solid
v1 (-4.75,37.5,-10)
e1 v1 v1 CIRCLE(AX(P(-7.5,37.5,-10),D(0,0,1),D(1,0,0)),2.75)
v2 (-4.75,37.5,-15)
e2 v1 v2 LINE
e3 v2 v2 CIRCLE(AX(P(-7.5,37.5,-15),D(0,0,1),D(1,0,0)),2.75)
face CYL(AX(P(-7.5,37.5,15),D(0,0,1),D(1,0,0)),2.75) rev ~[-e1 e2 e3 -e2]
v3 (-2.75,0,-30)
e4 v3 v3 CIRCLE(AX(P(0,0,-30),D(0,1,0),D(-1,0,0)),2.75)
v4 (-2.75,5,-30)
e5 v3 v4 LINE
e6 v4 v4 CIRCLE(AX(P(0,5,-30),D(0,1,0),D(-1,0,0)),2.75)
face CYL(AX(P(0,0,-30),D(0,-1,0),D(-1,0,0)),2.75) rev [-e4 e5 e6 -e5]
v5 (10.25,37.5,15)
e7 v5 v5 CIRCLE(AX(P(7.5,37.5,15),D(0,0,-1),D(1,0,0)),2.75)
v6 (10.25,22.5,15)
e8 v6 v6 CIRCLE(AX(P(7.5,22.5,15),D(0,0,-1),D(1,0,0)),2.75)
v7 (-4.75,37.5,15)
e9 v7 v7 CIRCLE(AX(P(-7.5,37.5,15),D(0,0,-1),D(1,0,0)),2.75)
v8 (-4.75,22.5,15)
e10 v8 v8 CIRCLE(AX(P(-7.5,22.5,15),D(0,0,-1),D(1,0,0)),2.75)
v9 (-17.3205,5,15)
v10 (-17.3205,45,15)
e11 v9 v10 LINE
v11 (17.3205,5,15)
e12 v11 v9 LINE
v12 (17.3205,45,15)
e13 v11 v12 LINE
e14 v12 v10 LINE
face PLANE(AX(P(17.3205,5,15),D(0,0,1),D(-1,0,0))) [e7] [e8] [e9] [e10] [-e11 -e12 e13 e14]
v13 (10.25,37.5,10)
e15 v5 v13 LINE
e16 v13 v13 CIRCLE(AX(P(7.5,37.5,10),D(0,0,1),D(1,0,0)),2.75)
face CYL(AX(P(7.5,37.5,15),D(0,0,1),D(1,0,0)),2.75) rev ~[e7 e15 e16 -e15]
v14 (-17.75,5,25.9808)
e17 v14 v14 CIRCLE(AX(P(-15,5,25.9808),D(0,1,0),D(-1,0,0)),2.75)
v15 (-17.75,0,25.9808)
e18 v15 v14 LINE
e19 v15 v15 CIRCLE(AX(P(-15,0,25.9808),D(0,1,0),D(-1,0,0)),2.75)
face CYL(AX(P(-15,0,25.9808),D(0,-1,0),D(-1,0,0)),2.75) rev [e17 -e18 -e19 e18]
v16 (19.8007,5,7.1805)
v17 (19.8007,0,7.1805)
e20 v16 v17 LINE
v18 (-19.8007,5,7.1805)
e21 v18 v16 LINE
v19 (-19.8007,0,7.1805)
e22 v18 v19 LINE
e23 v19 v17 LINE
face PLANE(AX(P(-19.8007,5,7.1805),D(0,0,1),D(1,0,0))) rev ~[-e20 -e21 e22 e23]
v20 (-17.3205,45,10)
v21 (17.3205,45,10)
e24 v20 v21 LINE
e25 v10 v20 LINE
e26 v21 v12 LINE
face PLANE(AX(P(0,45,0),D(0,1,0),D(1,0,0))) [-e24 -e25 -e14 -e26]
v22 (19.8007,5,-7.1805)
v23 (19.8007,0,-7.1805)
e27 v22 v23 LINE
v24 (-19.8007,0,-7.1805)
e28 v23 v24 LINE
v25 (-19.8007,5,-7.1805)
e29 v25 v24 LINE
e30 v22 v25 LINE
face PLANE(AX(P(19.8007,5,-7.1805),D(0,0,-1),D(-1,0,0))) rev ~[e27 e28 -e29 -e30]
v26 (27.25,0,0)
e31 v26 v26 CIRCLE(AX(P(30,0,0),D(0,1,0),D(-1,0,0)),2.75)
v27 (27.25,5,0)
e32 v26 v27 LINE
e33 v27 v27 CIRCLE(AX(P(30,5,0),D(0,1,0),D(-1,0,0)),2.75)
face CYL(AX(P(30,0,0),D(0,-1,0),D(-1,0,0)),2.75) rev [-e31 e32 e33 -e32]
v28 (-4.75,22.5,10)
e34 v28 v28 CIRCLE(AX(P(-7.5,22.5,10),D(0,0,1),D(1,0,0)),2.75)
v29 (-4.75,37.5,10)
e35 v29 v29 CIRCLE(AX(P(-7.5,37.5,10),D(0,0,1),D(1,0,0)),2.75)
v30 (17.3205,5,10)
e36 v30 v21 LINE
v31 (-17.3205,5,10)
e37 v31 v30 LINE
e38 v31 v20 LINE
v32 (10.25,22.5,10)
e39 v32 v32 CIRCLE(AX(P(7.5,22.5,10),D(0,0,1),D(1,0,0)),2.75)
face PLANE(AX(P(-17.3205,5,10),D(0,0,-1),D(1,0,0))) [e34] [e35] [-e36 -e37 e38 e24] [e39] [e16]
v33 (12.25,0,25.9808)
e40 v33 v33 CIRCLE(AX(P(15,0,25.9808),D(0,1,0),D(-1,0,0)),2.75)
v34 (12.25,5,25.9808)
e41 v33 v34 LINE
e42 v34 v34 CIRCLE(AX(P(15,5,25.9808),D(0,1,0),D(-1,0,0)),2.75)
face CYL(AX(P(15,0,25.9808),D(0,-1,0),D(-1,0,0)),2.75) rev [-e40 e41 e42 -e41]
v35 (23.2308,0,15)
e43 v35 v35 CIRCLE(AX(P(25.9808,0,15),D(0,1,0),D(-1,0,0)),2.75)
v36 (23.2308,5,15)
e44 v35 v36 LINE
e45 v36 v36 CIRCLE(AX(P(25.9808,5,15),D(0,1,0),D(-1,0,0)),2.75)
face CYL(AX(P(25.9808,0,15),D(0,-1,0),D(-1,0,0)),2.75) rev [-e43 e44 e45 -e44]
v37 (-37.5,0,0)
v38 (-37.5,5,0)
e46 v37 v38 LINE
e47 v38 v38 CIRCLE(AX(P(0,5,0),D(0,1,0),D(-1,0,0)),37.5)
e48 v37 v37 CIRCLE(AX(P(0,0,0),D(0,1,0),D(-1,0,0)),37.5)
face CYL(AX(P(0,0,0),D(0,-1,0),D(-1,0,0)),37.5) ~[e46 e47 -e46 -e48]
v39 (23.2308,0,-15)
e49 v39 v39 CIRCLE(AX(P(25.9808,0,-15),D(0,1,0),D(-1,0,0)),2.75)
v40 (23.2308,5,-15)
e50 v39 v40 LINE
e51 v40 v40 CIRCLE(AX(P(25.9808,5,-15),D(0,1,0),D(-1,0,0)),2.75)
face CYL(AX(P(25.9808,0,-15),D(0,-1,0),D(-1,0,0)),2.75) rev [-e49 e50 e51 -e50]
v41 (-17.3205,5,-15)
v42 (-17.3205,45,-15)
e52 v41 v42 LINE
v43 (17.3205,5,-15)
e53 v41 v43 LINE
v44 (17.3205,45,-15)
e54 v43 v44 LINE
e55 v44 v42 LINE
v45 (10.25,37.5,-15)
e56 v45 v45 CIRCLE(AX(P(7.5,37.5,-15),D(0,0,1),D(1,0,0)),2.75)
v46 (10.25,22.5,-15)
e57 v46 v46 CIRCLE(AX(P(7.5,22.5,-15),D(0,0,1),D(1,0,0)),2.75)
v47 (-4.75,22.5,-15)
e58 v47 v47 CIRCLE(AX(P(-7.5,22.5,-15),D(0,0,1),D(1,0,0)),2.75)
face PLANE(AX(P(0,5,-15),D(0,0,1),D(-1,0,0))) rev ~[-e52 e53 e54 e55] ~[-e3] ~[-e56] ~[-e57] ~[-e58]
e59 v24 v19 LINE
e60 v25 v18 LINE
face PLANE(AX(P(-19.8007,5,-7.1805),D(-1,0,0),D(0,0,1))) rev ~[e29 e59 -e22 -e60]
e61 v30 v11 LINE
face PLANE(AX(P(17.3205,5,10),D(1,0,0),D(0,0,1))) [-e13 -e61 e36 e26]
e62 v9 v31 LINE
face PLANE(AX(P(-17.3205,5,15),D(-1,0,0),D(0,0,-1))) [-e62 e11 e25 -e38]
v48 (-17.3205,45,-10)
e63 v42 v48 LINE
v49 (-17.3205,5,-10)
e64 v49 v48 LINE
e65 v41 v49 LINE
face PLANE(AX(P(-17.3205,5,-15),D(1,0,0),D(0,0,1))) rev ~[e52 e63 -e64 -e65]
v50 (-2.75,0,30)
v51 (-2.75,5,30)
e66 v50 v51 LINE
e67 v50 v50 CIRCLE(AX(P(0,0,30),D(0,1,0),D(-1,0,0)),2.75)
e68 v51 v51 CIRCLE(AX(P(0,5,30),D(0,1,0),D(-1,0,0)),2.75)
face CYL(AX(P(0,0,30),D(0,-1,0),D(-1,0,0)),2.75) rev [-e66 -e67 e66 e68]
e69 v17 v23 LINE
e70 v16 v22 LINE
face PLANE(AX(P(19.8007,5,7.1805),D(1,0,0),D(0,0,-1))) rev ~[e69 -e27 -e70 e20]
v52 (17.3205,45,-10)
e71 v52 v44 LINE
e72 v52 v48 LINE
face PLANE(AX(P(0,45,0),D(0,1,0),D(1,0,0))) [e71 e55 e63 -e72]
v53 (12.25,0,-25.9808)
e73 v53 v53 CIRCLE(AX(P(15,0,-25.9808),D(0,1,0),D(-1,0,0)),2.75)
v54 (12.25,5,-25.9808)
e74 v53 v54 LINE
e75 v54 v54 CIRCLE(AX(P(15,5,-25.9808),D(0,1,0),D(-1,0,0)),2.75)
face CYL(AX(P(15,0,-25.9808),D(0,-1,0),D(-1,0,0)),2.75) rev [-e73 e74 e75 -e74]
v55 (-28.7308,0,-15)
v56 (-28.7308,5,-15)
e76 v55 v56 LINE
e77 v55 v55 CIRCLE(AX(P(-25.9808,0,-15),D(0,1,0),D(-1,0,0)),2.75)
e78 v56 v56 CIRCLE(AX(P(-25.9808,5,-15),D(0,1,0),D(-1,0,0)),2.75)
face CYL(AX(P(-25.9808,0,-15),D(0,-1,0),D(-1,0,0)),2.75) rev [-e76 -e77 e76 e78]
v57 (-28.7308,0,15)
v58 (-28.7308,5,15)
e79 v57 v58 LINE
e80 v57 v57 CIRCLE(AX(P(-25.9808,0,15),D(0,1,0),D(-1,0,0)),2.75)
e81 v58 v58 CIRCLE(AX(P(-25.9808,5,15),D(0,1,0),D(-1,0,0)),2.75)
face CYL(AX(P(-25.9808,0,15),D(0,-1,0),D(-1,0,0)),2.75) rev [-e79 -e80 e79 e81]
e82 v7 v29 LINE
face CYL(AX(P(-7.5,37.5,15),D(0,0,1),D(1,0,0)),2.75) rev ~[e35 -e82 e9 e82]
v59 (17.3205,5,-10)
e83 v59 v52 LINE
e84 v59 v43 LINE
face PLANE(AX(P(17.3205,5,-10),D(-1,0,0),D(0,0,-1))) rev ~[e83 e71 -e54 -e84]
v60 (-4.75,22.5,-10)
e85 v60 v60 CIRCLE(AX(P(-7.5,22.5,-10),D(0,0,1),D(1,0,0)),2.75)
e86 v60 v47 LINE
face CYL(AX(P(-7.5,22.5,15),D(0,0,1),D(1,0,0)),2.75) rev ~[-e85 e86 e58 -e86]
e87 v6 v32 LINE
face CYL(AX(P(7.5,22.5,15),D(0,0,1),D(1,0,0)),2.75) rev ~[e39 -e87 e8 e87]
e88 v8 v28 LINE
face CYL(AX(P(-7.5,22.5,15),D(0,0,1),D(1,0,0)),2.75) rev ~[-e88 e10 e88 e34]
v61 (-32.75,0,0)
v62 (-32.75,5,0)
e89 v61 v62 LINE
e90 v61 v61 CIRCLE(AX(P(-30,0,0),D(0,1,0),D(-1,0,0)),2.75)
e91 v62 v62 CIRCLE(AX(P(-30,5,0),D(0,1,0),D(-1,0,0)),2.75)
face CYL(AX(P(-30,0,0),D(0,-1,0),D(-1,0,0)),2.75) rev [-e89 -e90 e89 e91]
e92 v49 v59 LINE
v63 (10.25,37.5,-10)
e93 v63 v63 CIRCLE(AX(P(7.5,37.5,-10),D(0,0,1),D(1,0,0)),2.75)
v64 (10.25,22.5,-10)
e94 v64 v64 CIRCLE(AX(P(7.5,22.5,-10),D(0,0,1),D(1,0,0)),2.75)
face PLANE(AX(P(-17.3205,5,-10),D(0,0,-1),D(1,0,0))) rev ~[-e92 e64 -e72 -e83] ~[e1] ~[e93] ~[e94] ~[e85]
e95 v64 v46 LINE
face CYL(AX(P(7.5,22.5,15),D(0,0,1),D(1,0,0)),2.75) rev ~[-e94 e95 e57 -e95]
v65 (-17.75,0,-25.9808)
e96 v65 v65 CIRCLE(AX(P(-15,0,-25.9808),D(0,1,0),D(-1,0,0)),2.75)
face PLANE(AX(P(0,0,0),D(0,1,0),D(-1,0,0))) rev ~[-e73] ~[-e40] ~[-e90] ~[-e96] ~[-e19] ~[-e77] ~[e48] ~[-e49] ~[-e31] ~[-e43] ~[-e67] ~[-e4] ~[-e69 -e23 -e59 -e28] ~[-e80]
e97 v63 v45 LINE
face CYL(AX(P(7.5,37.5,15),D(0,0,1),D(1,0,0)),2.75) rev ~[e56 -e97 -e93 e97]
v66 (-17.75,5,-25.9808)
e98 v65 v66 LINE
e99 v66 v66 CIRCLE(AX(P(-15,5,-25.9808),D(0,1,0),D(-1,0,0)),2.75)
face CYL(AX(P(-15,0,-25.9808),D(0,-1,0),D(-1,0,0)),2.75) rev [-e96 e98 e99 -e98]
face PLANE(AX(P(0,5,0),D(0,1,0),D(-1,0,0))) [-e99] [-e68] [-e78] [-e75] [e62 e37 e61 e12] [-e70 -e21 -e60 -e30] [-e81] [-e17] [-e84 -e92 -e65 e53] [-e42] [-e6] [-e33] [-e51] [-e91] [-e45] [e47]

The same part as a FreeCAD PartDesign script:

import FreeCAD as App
import Part
import Sketcher
from FreeCAD import Vector
Q = App.Units.Quantity

doc = App.newDocument("Part")
body = doc.addObject("PartDesign::Body", "Body")

# Sketch on XZ plane
sketch1 = body.newObject("Sketcher::SketchObject", "Sketch")
sketch1.AttachmentSupport = (doc.getObject("XZ_Plane"), [""])
sketch1.MapMode = "FlatFace"
sketch1.addGeometry(Part.Circle(Vector(0, 0, 0), Vector(0, 0, 1), 37.5), False)
sketch1.addGeometry(Part.Circle(Vector(15, -26, 0), Vector(0, 0, 1), 2.8), False)
sketch1.addGeometry(Part.Circle(Vector(26, -15, 0), Vector(0, 0, 1), 2.8), False)
sketch1.addGeometry(Part.Circle(Vector(0, -30, 0), Vector(0, 0, 1), 2.8), False)
sketch1.addGeometry(Part.Circle(Vector(-15, -26, 0), Vector(0, 0, 1), 2.8), False)
sketch1.addGeometry(Part.Circle(Vector(-26, -15, 0), Vector(0, 0, 1), 2.8), False)
sketch1.addGeometry(Part.Circle(Vector(30, 0, 0), Vector(0, 0, 1), 2.8), False)
sketch1.addGeometry(Part.Circle(Vector(26, 15, 0), Vector(0, 0, 1), 2.8), False)
sketch1.addGeometry(Part.Circle(Vector(15, 26, 0), Vector(0, 0, 1), 2.8), False)
sketch1.addGeometry(Part.Circle(Vector(-30, 0, 0), Vector(0, 0, 1), 2.8), False)
sketch1.addGeometry(Part.Circle(Vector(-26, 15, 0), Vector(0, 0, 1), 2.8), False)
sketch1.addGeometry(Part.Circle(Vector(-15, 26, 0), Vector(0, 0, 1), 2.8), False)
sketch1.addGeometry(Part.Circle(Vector(0, 30, 0), Vector(0, 0, 1), 2.8), False)
sketch1.addConstraint(Sketcher.Constraint("Coincident", 0, 3, -1, 1))
sketch1.addConstraint(Sketcher.Constraint("Equal", 1, 2))
sketch1.addConstraint(Sketcher.Constraint("Equal", 2, 3))
sketch1.addConstraint(Sketcher.Constraint("Equal", 3, 4))
sketch1.addConstraint(Sketcher.Constraint("Equal", 4, 5))
sketch1.addConstraint(Sketcher.Constraint("Equal", 5, 6))
sketch1.addConstraint(Sketcher.Constraint("Equal", 6, 7))
sketch1.addConstraint(Sketcher.Constraint("Equal", 7, 8))
sketch1.addConstraint(Sketcher.Constraint("Equal", 8, 9))
sketch1.addConstraint(Sketcher.Constraint("Equal", 9, 10))
sketch1.addConstraint(Sketcher.Constraint("Equal", 10, 11))
sketch1.addConstraint(Sketcher.Constraint("Equal", 11, 12))
sketch1.addConstraint(Sketcher.Constraint("Symmetric", 5, 3, 7, 3, -1, 1))
sketch1.addConstraint(Sketcher.Constraint("Symmetric", 4, 3, 8, 3, -1, 1))
sketch1.addConstraint(Sketcher.Constraint("Symmetric", 6, 3, 9, 3, -1, 1))
sketch1.addConstraint(Sketcher.Constraint("Symmetric", 2, 3, 10, 3, -1, 1))
sketch1.addConstraint(Sketcher.Constraint("Symmetric", 1, 3, 11, 3, -1, 1))
sketch1.addConstraint(Sketcher.Constraint("Symmetric", 3, 3, 12, 3, -1, 1))
sketch1.addConstraint(Sketcher.Constraint("Symmetric", 1, 3, 4, 3, -2))
sketch1.addConstraint(Sketcher.Constraint("Symmetric", 2, 3, 5, 3, -2))
sketch1.addConstraint(Sketcher.Constraint("PointOnObject", 3, 3, -2))
sketch1.addConstraint(Sketcher.Constraint("PointOnObject", 6, 3, -1))
sketch1.addConstraint(Sketcher.Constraint("Diameter", 0, Q("75 mm")))
sketch1.addConstraint(Sketcher.Constraint("Diameter", 1, Q("5.5 mm")))
sketch1.addConstraint(Sketcher.Constraint("DistanceY", 3, 3, -1, 1, Q("30 mm")))
sketch1.addConstraint(Sketcher.Constraint("DistanceX", -1, 1, 6, 3, Q("30 mm")))
sketch1.addConstraint(Sketcher.Constraint("DistanceX", 4, 3, 1, 3, Q("30 mm")))
sketch1.addConstraint(Sketcher.Constraint("DistanceY", 2, 3, 7, 3, Q("30 mm")))
sketch1.addConstraint(Sketcher.Constraint("DistanceY", 1, 3, -1, 1, Q("25.9808 mm")))
sketch1.addConstraint(Sketcher.Constraint("DistanceX", -1, 1, 2, 3, Q("25.9808 mm")))
pad1 = body.newObject("PartDesign::Pad", "Pad")
pad1.Profile = sketch1
pad1.Length = 5
pad1.Reversed = True

# Sketch on XZ plane
sketch2 = body.newObject("Sketcher::SketchObject", "Sketch001")
sketch2.AttachmentSupport = (doc.getObject("XZ_Plane"), [""])
sketch2.MapMode = "FlatFace"
sketch2.AttachmentOffset = App.Placement(Vector(0, 0, -5), App.Rotation())
sketch2.addGeometry(Part.LineSegment(Vector(-17, -10, 0), Vector(17, -10, 0)), False)
sketch2.addGeometry(Part.LineSegment(Vector(17, -10, 0), Vector(17, -15, 0)), False)
sketch2.addGeometry(Part.LineSegment(Vector(17, -15, 0), Vector(-17, -15, 0)), False)
sketch2.addGeometry(Part.LineSegment(Vector(-17, -15, 0), Vector(-17, -10, 0)), False)
sketch2.addGeometry(Part.LineSegment(Vector(17, 10, 0), Vector(-17, 10, 0)), False)
sketch2.addGeometry(Part.LineSegment(Vector(-17, 10, 0), Vector(-17, 15, 0)), False)
sketch2.addGeometry(Part.LineSegment(Vector(-17, 15, 0), Vector(17, 15, 0)), False)
sketch2.addGeometry(Part.LineSegment(Vector(17, 15, 0), Vector(17, 10, 0)), False)
sketch2.addConstraint(Sketcher.Constraint("Coincident", 0, 2, 1, 1))
sketch2.addConstraint(Sketcher.Constraint("Coincident", 1, 2, 2, 1))
sketch2.addConstraint(Sketcher.Constraint("Coincident", 2, 2, 3, 1))
sketch2.addConstraint(Sketcher.Constraint("Coincident", 3, 2, 0, 1))
sketch2.addConstraint(Sketcher.Constraint("Coincident", 4, 2, 5, 1))
sketch2.addConstraint(Sketcher.Constraint("Coincident", 5, 2, 6, 1))
sketch2.addConstraint(Sketcher.Constraint("Coincident", 6, 2, 7, 1))
sketch2.addConstraint(Sketcher.Constraint("Coincident", 7, 2, 4, 1))
sketch2.addConstraint(Sketcher.Constraint("Horizontal", 0))
sketch2.addConstraint(Sketcher.Constraint("Vertical", 1))
sketch2.addConstraint(Sketcher.Constraint("Horizontal", 2))
sketch2.addConstraint(Sketcher.Constraint("Vertical", 3))
sketch2.addConstraint(Sketcher.Constraint("Horizontal", 4))
sketch2.addConstraint(Sketcher.Constraint("Vertical", 5))
sketch2.addConstraint(Sketcher.Constraint("Horizontal", 6))
sketch2.addConstraint(Sketcher.Constraint("Vertical", 7))
sketch2.addConstraint(Sketcher.Constraint("Symmetric", 0, 2, 4, 2, -1, 1))
sketch2.addConstraint(Sketcher.Constraint("Symmetric", 2, 2, 6, 2, -1, 1))
sketch2.addConstraint(Sketcher.Constraint("Vertical", 3, 2, 4, 2))
sketch2.addConstraint(Sketcher.Constraint("DistanceY", 1, 2, 1, 1, Q("5 mm")))
sketch2.addConstraint(Sketcher.Constraint("DistanceY", 3, 2, 4, 2, Q("20 mm")))
sketch2.addConstraint(Sketcher.Constraint("DistanceX", 0, 1, 0, 2, Q("34.641 mm")))
pad2 = body.newObject("PartDesign::Pad", "Pad001")
pad2.Profile = sketch2
pad2.Length = 40
pad2.Reversed = True

# Sketch on XY plane
sketch3 = body.newObject("Sketcher::SketchObject", "Sketch002")
sketch3.AttachmentSupport = (doc.getObject("XY_Plane"), [""])
sketch3.MapMode = "FlatFace"
sketch3.AttachmentOffset = App.Placement(Vector(0, 0, 15), App.Rotation())
sketch3.addGeometry(Part.Circle(Vector(-7.5, 37.5, 0), Vector(0, 0, 1), 2.8), False)
sketch3.addGeometry(Part.Circle(Vector(7.5, 37.5, 0), Vector(0, 0, 1), 2.8), False)
sketch3.addGeometry(Part.Circle(Vector(-7.5, 22.5, 0), Vector(0, 0, 1), 2.8), False)
sketch3.addGeometry(Part.Circle(Vector(7.5, 22.5, 0), Vector(0, 0, 1), 2.8), False)
sketch3.addConstraint(Sketcher.Constraint("Equal", 0, 1))
sketch3.addConstraint(Sketcher.Constraint("Equal", 1, 2))
sketch3.addConstraint(Sketcher.Constraint("Equal", 2, 3))
sketch3.addConstraint(Sketcher.Constraint("Symmetric", 0, 3, 1, 3, -2))
sketch3.addConstraint(Sketcher.Constraint("Symmetric", 2, 3, 3, 3, -2))
sketch3.addConstraint(Sketcher.Constraint("Vertical", 0, 3, 2, 3))
sketch3.addConstraint(Sketcher.Constraint("Diameter", 0, Q("5.5 mm")))
sketch3.addConstraint(Sketcher.Constraint("DistanceX", 0, 3, 1, 3, Q("15 mm")))
sketch3.addConstraint(Sketcher.Constraint("DistanceY", 2, 3, 0, 3, Q("15 mm")))
sketch3.addConstraint(Sketcher.Constraint("DistanceY", -1, 1, 0, 3, Q("37.5 mm")))
pocket1 = body.newObject("PartDesign::Pocket", "Pocket")
pocket1.Profile = sketch3
pocket1.Length = 80

# Sketch on XZ plane
sketch4 = body.newObject("Sketcher::SketchObject", "Sketch003")
sketch4.AttachmentSupport = (doc.getObject("XZ_Plane"), [""])
sketch4.MapMode = "FlatFace"
sketch4.AttachmentOffset = App.Placement(Vector(0, 0, -5), App.Rotation())
sketch4.addGeometry(Part.LineSegment(Vector(20, 7, 0), Vector(20, -7, 0)), False)
sketch4.addGeometry(Part.LineSegment(Vector(20, -7, 0), Vector(-20, -7, 0)), False)
sketch4.addGeometry(Part.LineSegment(Vector(-20, -7, 0), Vector(-20, 7, 0)), False)
sketch4.addGeometry(Part.LineSegment(Vector(-20, 7, 0), Vector(20, 7, 0)), False)
sketch4.addConstraint(Sketcher.Constraint("Coincident", 0, 2, 1, 1))
sketch4.addConstraint(Sketcher.Constraint("Coincident", 1, 2, 2, 1))
sketch4.addConstraint(Sketcher.Constraint("Coincident", 2, 2, 3, 1))
sketch4.addConstraint(Sketcher.Constraint("Coincident", 3, 2, 0, 1))
sketch4.addConstraint(Sketcher.Constraint("Vertical", 0))
sketch4.addConstraint(Sketcher.Constraint("Horizontal", 1))
sketch4.addConstraint(Sketcher.Constraint("Vertical", 2))
sketch4.addConstraint(Sketcher.Constraint("Horizontal", 3))
sketch4.addConstraint(Sketcher.Constraint("Symmetric", 0, 2, 2, 2, -1, 1))
sketch4.addConstraint(Sketcher.Constraint("DistanceY", 0, 2, 0, 1, Q("14.361 mm")))
sketch4.addConstraint(Sketcher.Constraint("DistanceX", 1, 2, 1, 1, Q("39.6014 mm")))
pocket2 = body.newObject("PartDesign::Pocket", "Pocket001")
pocket2.Profile = sketch4
pocket2.Length = 10
pocket2.Reversed = True

doc.recompute()
